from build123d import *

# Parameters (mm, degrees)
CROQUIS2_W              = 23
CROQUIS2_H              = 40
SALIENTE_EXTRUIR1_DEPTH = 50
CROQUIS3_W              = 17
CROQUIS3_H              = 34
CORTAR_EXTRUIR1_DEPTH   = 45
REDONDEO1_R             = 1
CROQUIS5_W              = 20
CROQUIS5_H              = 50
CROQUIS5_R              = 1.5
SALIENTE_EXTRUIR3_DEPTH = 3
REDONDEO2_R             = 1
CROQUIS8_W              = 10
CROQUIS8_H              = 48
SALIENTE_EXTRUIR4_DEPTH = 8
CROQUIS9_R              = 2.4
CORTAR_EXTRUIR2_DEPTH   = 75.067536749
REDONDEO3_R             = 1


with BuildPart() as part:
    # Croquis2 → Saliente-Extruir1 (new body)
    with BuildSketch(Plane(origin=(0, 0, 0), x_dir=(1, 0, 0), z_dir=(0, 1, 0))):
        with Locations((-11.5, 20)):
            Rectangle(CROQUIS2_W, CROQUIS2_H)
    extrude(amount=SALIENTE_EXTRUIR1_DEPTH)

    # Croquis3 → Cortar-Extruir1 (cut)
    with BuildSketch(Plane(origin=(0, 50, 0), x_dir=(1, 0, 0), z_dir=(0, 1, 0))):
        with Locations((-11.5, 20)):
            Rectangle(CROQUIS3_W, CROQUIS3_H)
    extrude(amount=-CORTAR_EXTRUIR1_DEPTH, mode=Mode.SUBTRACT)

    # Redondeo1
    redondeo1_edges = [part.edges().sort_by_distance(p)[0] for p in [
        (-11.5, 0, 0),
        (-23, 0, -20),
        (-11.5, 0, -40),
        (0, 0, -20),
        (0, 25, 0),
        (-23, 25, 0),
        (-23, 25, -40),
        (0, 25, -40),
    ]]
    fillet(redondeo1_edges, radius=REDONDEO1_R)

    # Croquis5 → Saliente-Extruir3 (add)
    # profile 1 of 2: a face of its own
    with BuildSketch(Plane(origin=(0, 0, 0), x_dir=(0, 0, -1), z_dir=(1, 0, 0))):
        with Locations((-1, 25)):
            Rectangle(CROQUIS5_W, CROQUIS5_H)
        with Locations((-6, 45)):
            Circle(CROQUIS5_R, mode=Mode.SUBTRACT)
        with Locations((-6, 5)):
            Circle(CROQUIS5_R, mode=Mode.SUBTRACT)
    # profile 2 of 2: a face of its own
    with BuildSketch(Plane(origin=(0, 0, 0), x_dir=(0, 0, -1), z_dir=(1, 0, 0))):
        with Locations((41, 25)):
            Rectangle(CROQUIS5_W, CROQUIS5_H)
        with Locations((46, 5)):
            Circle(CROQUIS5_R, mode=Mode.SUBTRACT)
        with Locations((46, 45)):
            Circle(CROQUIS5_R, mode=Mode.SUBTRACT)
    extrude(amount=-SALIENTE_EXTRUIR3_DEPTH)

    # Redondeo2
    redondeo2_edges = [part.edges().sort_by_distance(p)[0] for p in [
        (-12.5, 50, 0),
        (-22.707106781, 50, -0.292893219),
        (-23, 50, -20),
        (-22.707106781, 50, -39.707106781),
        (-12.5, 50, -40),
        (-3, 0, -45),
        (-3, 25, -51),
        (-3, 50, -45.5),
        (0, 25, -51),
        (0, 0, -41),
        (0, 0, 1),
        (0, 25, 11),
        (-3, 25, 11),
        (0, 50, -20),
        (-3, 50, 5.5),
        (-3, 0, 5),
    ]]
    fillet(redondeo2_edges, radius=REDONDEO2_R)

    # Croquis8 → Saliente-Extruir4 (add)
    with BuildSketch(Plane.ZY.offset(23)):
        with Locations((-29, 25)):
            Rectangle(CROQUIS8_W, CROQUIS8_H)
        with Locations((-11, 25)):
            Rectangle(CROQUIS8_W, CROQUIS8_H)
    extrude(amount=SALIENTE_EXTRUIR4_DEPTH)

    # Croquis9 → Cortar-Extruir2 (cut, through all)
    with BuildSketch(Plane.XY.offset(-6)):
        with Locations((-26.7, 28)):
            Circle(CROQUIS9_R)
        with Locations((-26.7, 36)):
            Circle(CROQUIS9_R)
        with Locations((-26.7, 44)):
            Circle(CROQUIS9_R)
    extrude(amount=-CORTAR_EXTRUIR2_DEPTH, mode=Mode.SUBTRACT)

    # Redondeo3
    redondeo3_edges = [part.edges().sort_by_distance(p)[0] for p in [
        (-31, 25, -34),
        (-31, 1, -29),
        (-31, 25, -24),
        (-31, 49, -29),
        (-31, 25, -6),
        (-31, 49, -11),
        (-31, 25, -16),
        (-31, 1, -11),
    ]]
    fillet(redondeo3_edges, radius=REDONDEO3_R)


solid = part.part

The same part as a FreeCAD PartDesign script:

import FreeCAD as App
import Part
import Sketcher

V = App.Vector


def edges_at(feature, points):
    """Names of the edges that pass closest to the given points."""
    edges = feature.Shape.Edges
    near = lambda p: min(range(len(edges)), key=lambda i: edges[i].distToShape(Part.Vertex(*p))[0])
    return sorted({f"Edge{near(p) + 1}" for p in points})

doc = App.newDocument("Part")
params = doc.addObject("Spreadsheet::Sheet", "Params")
for row, (alias, value) in enumerate([
    ("sketch1_width", "23 mm"),
    ("sketch1_height", "40 mm"),
    ("pad1_length", "50 mm"),
    ("sketch2_width", "17 mm"),
    ("sketch2_height", "34 mm"),
    ("pocket1_length", "45 mm"),
    ("fillet_radius", "1 mm"),
    ("sketch3_diameter", "3 mm"),
    ("sketch3_width", "50 mm"),
    ("sketch3_height", "20 mm"),
    ("pad2_length", "3 mm"),
    ("fillet2_radius", "1 mm"),
    ("sketch4_width", "48 mm"),
    ("sketch4_height", "10 mm"),
    ("pad3_length", "8 mm"),
    ("sketch5_diameter", "4.8 mm"),
    ("fillet3_radius", "1 mm"),
], start=1):
    params.set(f"A{row}", alias)
    params.set(f"B{row}", "=" + value)
    params.setAlias(f"B{row}", alias)

body = doc.addObject("PartDesign::Body", "Body")

# Sketch on XZ plane
sketch1 = body.newObject("Sketcher::SketchObject", "Sketch")
sketch1.AttachmentSupport = (doc.getObject("XZ_Plane"), [""])
sketch1.MapMode = "FlatFace"
sketch1.addGeometry(Part.LineSegment(V(-23, -40, 0), V(-23, 0, 0)), False)
sketch1.addGeometry(Part.LineSegment(V(-23, 0, 0), V(0, 0, 0)), False)
sketch1.addGeometry(Part.LineSegment(V(0, 0, 0), V(0, -40, 0)), False)
sketch1.addGeometry(Part.LineSegment(V(0, -40, 0), V(-23, -40, 0)), False)
sketch1.addConstraint(Sketcher.Constraint("Coincident", 0, 2, 1, 1))
sketch1.addConstraint(Sketcher.Constraint("Coincident", 1, 2, 2, 1))
sketch1.addConstraint(Sketcher.Constraint("Coincident", 2, 2, 3, 1))
sketch1.addConstraint(Sketcher.Constraint("Coincident", 3, 2, 0, 1))
sketch1.addConstraint(Sketcher.Constraint("Vertical", 0))
sketch1.addConstraint(Sketcher.Constraint("Horizontal", 1))
sketch1.addConstraint(Sketcher.Constraint("Vertical", 2))
sketch1.addConstraint(Sketcher.Constraint("Horizontal", 3))
sketch1.addConstraint(Sketcher.Constraint("Coincident", 1, 2, -1, 1))
sketch1.addConstraint(Sketcher.Constraint("DistanceX", 1, 1, 1, 2, 23.0))
sketch1.addConstraint(Sketcher.Constraint("DistanceY", 0, 1, 0, 2, 40.0))
sketch1.setExpression("Constraints[9]", "Params.sketch1_width")
sketch1.setExpression("Constraints[10]", "Params.sketch1_height")
pad1 = body.newObject("PartDesign::Pad", "Pad")
pad1.Profile = sketch1
pad1.setExpression("Length", "Params.pad1_length")
pad1.Reversed = True

# Sketch on XZ plane
sketch2 = body.newObject("Sketcher::SketchObject", "Sketch001")
sketch2.AttachmentSupport = (doc.getObject("XZ_Plane"), [""])
sketch2.MapMode = "FlatFace"
sketch2.AttachmentOffset = App.Placement(V(0, 0, -50), App.Rotation())
sketch2.addGeometry(Part.LineSegment(V(-20, -37, 0), V(-20, -3, 0)), False)
sketch2.addGeometry(Part.LineSegment(V(-20, -3, 0), V(-3, -3, 0)), False)
sketch2.addGeometry(Part.LineSegment(V(-3, -3, 0), V(-3, -37, 0)), False)
sketch2.addGeometry(Part.LineSegment(V(-3, -37, 0), V(-20, -37, 0)), False)
sketch2.addConstraint(Sketcher.Constraint("Coincident", 0, 2, 1, 1))
sketch2.addConstraint(Sketcher.Constraint("Coincident", 1, 2, 2, 1))
sketch2.addConstraint(Sketcher.Constraint("Coincident", 2, 2, 3, 1))
sketch2.addConstraint(Sketcher.Constraint("Coincident", 3, 2, 0, 1))
sketch2.addConstraint(Sketcher.Constraint("Vertical", 0))
sketch2.addConstraint(Sketcher.Constraint("Horizontal", 1))
sketch2.addConstraint(Sketcher.Constraint("Vertical", 2))
sketch2.addConstraint(Sketcher.Constraint("Horizontal", 3))
sketch2.addConstraint(Sketcher.Constraint("DistanceX", 1, 1, 1, 2, 17.0))
sketch2.addConstraint(Sketcher.Constraint("DistanceY", 0, 1, 0, 2, 34.0))
sketch2.addConstraint(Sketcher.Constraint("DistanceX", 0, 2, -1, 1, 20.0))
sketch2.addConstraint(Sketcher.Constraint("DistanceY", 0, 2, -1, 1, 3.0))
sketch2.setExpression("Constraints[8]", "Params.sketch2_width")
sketch2.setExpression("Constraints[9]", "Params.sketch2_height")
pocket1 = body.newObject("PartDesign::Pocket", "Pocket")
pocket1.Profile = sketch2
pocket1.setExpression("Length", "Params.pocket1_length")
pocket1.Reversed = True
doc.recompute()

fillet = body.newObject("PartDesign::Fillet", "Fillet")
fillet.Base = (pocket1, edges_at(pocket1, [
    (-11.5, 0, 0),
    (-23, 0, -20),
    (-11.5, 0, -40),
    (0, 0, -20),
    (0, 25, 0),
    (-23, 25, 0),
    (-23, 25, -40),
    (0, 25, -40),
]))
fillet.setExpression("Radius", "Params.fillet_radius")

# Sketch on YZ plane
sketch3 = body.newObject("Sketcher::SketchObject", "Sketch002")
sketch3.AttachmentSupport = (doc.getObject("YZ_Plane"), [""])
sketch3.MapMode = "FlatFace"
sketch3.addGeometry(Part.LineSegment(V(50, 11, 0), V(0, 11, 0)), False)
sketch3.addGeometry(Part.LineSegment(V(0, 11, 0), V(0, -9, 0)), False)
sketch3.addGeometry(Part.LineSegment(V(0, -9, 0), V(50, -9, 0)), False)
sketch3.addGeometry(Part.LineSegment(V(50, -9, 0), V(50, 11, 0)), False)
sketch3.addGeometry(Part.Circle(V(5, 6, 0), V(0, 0, 1), 1.5), False)
sketch3.addGeometry(Part.Circle(V(45, 6, 0), V(0, 0, 1), 1.5), False)
sketch3.addGeometry(Part.LineSegment(V(50, -31, 0), V(0, -31, 0)), False)
sketch3.addGeometry(Part.LineSegment(V(0, -31, 0), V(0, -51, 0)), False)
sketch3.addGeometry(Part.LineSegment(V(0, -51, 0), V(50, -51, 0)), False)
sketch3.addGeometry(Part.LineSegment(V(50, -51, 0), V(50, -31, 0)), False)
sketch3.addGeometry(Part.Circle(V(5, -46, 0), V(0, 0, 1), 1.5), False)
sketch3.addGeometry(Part.Circle(V(45, -46, 0), V(0, 0, 1), 1.5), False)
sketch3.addConstraint(Sketcher.Constraint("Coincident", 0, 2, 1, 1))
sketch3.addConstraint(Sketcher.Constraint("Coincident", 1, 2, 2, 1))
sketch3.addConstraint(Sketcher.Constraint("Coincident", 2, 2, 3, 1))
sketch3.addConstraint(Sketcher.Constraint("Coincident", 3, 2, 0, 1))
sketch3.addConstraint(Sketcher.Constraint("Coincident", 6, 2, 7, 1))
sketch3.addConstraint(Sketcher.Constraint("Coincident", 7, 2, 8, 1))
sketch3.addConstraint(Sketcher.Constraint("Coincident", 8, 2, 9, 1))
sketch3.addConstraint(Sketcher.Constraint("Coincident", 9, 2, 6, 1))
sketch3.addConstraint(Sketcher.Constraint("Horizontal", 0))
sketch3.addConstraint(Sketcher.Constraint("Vertical", 1))
sketch3.addConstraint(Sketcher.Constraint("Horizontal", 2))
sketch3.addConstraint(Sketcher.Constraint("Vertical", 3))
sketch3.addConstraint(Sketcher.Constraint("Horizontal", 6))
sketch3.addConstraint(Sketcher.Constraint("Vertical", 7))
sketch3.addConstraint(Sketcher.Constraint("Horizontal", 8))
sketch3.addConstraint(Sketcher.Constraint("Vertical", 9))
sketch3.addConstraint(Sketcher.Constraint("Equal", 4, 5))
sketch3.addConstraint(Sketcher.Constraint("Equal", 5, 10))
sketch3.addConstraint(Sketcher.Constraint("Equal", 10, 11))
sketch3.addConstraint(Sketcher.Constraint("PointOnObject", 0, 2, -2))
sketch3.addConstraint(Sketcher.Constraint("PointOnObject", 6, 2, -2))
sketch3.addConstraint(Sketcher.Constraint("Horizontal", 4, 3, 5, 3))
sketch3.addConstraint(Sketcher.Constraint("Horizontal", 10, 3, 11, 3))
sketch3.addConstraint(Sketcher.Constraint("Vertical", 4, 3, 10, 3))
sketch3.addConstraint(Sketcher.Constraint("Vertical", 5, 3, 11, 3))
sketch3.addConstraint(Sketcher.Constraint("Vertical", 3, 2, 8, 2))
sketch3.addConstraint(Sketcher.Constraint("Equal", 3, 7))
sketch3.addConstraint(Sketcher.Constraint("Diameter", 4, 3.0))
sketch3.addConstraint(Sketcher.Constraint("DistanceX", 0, 2, 0, 1, 50.0))
sketch3.addConstraint(Sketcher.Constraint("DistanceY", 1, 2, 1, 1, 20.0))
sketch3.addConstraint(Sketcher.Constraint("DistanceX", -1, 1, 4, 3, 5.0))
sketch3.addConstraint(Sketcher.Constraint("DistanceY", -1, 1, 4, 3, 6.0))
sketch3.addConstraint(Sketcher.Constraint("DistanceX", -1, 1, 5, 3, 45.0))
sketch3.addConstraint(Sketcher.Constraint("DistanceY", 10, 3, -1, 1, 46.0))
sketch3.addConstraint(Sketcher.Constraint("DistanceY", -1, 1, 0, 2, 11.0))
sketch3.addConstraint(Sketcher.Constraint("DistanceY", 6, 2, -1, 1, 31.0))
sketch3.setExpression("Constraints[27]", "Params.sketch3_diameter")
sketch3.setExpression("Constraints[28]", "Params.sketch3_width")
sketch3.setExpression("Constraints[29]", "Params.sketch3_height")
pad2 = body.newObject("PartDesign::Pad", "Pad001")
pad2.Profile = sketch3
pad2.setExpression("Length", "Params.pad2_length")
pad2.Reversed = True
doc.recompute()

fillet2 = body.newObject("PartDesign::Fillet", "Fillet001")
fillet2.Base = (pad2, edges_at(pad2, [
    (-12.5, 50, 0),
    (-22.707, 50, -0.293),
    (-23, 50, -20),
    (-22.707, 50, -39.707),
    (-12.5, 50, -40),
    (-3, 0, -45),
    (-3, 25, -51),
    (-3, 50, -45.5),
    (0, 25, -51),
    (0, 0, -41),
    (0, 0, 1),
    (0, 25, 11),
    (-3, 25, 11),
    (0, 50, -20),
    (-3, 50, 5.5),
    (-3, 0, 5),
]))
fillet2.setExpression("Radius", "Params.fillet2_radius")

# Sketch on YZ plane
sketch4 = body.newObject("Sketcher::SketchObject", "Sketch003")
sketch4.AttachmentSupport = (doc.getObject("YZ_Plane"), [""])
sketch4.MapMode = "FlatFace"
sketch4.AttachmentOffset = App.Placement(V(0, 0, -23), App.Rotation())
sketch4.addGeometry(Part.LineSegment(V(49, -34, 0), V(1, -34, 0)), False)
sketch4.addGeometry(Part.LineSegment(V(1, -34, 0), V(1, -24, 0)), False)
sketch4.addGeometry(Part.LineSegment(V(1, -24, 0), V(49, -24, 0)), False)
sketch4.addGeometry(Part.LineSegment(V(49, -24, 0), V(49, -34, 0)), False)
sketch4.addGeometry(Part.LineSegment(V(49, -16, 0), V(1, -16, 0)), False)
sketch4.addGeometry(Part.LineSegment(V(1, -16, 0), V(1, -6, 0)), False)
sketch4.addGeometry(Part.LineSegment(V(1, -6, 0), V(49, -6, 0)), False)
sketch4.addGeometry(Part.LineSegment(V(49, -6, 0), V(49, -16, 0)), False)
sketch4.addConstraint(Sketcher.Constraint("Coincident", 0, 2, 1, 1))
sketch4.addConstraint(Sketcher.Constraint("Coincident", 1, 2, 2, 1))
sketch4.addConstraint(Sketcher.Constraint("Coincident", 2, 2, 3, 1))
sketch4.addConstraint(Sketcher.Constraint("Coincident", 3, 2, 0, 1))
sketch4.addConstraint(Sketcher.Constraint("Coincident", 4, 2, 5, 1))
sketch4.addConstraint(Sketcher.Constraint("Coincident", 5, 2, 6, 1))
sketch4.addConstraint(Sketcher.Constraint("Coincident", 6, 2, 7, 1))
sketch4.addConstraint(Sketcher.Constraint("Coincident", 7, 2, 4, 1))
sketch4.addConstraint(Sketcher.Constraint("Horizontal", 0))
sketch4.addConstraint(Sketcher.Constraint("Vertical", 1))
sketch4.addConstraint(Sketcher.Constraint("Horizontal", 2))
sketch4.addConstraint(Sketcher.Constraint("Vertical", 3))
sketch4.addConstraint(Sketcher.Constraint("Horizontal", 4))
sketch4.addConstraint(Sketcher.Constraint("Vertical", 5))
sketch4.addConstraint(Sketcher.Constraint("Horizontal", 6))
sketch4.addConstraint(Sketcher.Constraint("Vertical", 7))
sketch4.addConstraint(Sketcher.Constraint("Vertical", 1, 2, 4, 2))
sketch4.addConstraint(Sketcher.Constraint("Vertical", 3, 2, 6, 2))
sketch4.addConstraint(Sketcher.Constraint("Equal", 3, 5))
sketch4.addConstraint(Sketcher.Constraint("DistanceX", 0, 2, 0, 1, 48.0))
sketch4.addConstraint(Sketcher.Constraint("DistanceY", 1, 1, 1, 2, 10.0))
sketch4.addConstraint(Sketcher.Constraint("DistanceX", -1, 1, 0, 2, 1.0))
sketch4.addConstraint(Sketcher.Constraint("DistanceY", 0, 2, -1, 1, 34.0))
sketch4.addConstraint(Sketcher.Constraint("DistanceY", 4, 2, -1, 1, 16.0))
sketch4.setExpression("Constraints[19]", "Params.sketch4_width")
sketch4.setExpression("Constraints[20]", "Params.sketch4_height")
pad3 = body.newObject("PartDesign::Pad", "Pad002")
pad3.Profile = sketch4
pad3.setExpression("Length", "Params.pad3_length")
pad3.Reversed = True

# Sketch on XY plane
sketch5 = body.newObject("Sketcher::SketchObject", "Sketch004")
sketch5.AttachmentSupport = (doc.getObject("XY_Plane"), [""])
sketch5.MapMode = "FlatFace"
sketch5.AttachmentOffset = App.Placement(V(0, 0, -6), App.Rotation())
sketch5.addGeometry(Part.Circle(V(-26.7, 28, 0), V(0, 0, 1), 2.4), False)
sketch5.addGeometry(Part.Circle(V(-26.7, 36, 0), V(0, 0, 1), 2.4), False)
sketch5.addGeometry(Part.Circle(V(-26.7, 44, 0), V(0, 0, 1), 2.4), False)
sketch5.addConstraint(Sketcher.Constraint("Equal", 0, 1))
sketch5.addConstraint(Sketcher.Constraint("Equal", 1, 2))
sketch5.addConstraint(Sketcher.Constraint("Vertical", 0, 3, 1, 3))
sketch5.addConstraint(Sketcher.Constraint("Vertical", 1, 3, 2, 3))
sketch5.addConstraint(Sketcher.Constraint("Diameter", 0, 4.8))
sketch5.addConstraint(Sketcher.Constraint("DistanceY", -1, 1, 0, 3, 28.0))
sketch5.addConstraint(Sketcher.Constraint("DistanceY", -1, 1, 1, 3, 36.0))
sketch5.addConstraint(Sketcher.Constraint("DistanceY", -1, 1, 2, 3, 44.0))
sketch5.addConstraint(Sketcher.Constraint("DistanceX", 0, 3, -1, 1, 26.7))
sketch5.setExpression("Constraints[4]", "Params.sketch5_diameter")
pocket2 = body.newObject("PartDesign::Pocket", "Pocket001")
pocket2.Profile = sketch5
pocket2.Type = "ThroughAll"
doc.recompute()

fillet3 = body.newObject("PartDesign::Fillet", "Fillet002")
fillet3.Base = (pocket2, edges_at(pocket2, [
    (-31, 25, -34),
    (-31, 1, -29),
    (-31, 25, -24),
    (-31, 49, -29),
    (-31, 25, -6),
    (-31, 49, -11),
    (-31, 25, -16),
    (-31, 1, -11),
]))
fillet3.setExpression("Radius", "Params.fillet3_radius")

doc.recompute()
